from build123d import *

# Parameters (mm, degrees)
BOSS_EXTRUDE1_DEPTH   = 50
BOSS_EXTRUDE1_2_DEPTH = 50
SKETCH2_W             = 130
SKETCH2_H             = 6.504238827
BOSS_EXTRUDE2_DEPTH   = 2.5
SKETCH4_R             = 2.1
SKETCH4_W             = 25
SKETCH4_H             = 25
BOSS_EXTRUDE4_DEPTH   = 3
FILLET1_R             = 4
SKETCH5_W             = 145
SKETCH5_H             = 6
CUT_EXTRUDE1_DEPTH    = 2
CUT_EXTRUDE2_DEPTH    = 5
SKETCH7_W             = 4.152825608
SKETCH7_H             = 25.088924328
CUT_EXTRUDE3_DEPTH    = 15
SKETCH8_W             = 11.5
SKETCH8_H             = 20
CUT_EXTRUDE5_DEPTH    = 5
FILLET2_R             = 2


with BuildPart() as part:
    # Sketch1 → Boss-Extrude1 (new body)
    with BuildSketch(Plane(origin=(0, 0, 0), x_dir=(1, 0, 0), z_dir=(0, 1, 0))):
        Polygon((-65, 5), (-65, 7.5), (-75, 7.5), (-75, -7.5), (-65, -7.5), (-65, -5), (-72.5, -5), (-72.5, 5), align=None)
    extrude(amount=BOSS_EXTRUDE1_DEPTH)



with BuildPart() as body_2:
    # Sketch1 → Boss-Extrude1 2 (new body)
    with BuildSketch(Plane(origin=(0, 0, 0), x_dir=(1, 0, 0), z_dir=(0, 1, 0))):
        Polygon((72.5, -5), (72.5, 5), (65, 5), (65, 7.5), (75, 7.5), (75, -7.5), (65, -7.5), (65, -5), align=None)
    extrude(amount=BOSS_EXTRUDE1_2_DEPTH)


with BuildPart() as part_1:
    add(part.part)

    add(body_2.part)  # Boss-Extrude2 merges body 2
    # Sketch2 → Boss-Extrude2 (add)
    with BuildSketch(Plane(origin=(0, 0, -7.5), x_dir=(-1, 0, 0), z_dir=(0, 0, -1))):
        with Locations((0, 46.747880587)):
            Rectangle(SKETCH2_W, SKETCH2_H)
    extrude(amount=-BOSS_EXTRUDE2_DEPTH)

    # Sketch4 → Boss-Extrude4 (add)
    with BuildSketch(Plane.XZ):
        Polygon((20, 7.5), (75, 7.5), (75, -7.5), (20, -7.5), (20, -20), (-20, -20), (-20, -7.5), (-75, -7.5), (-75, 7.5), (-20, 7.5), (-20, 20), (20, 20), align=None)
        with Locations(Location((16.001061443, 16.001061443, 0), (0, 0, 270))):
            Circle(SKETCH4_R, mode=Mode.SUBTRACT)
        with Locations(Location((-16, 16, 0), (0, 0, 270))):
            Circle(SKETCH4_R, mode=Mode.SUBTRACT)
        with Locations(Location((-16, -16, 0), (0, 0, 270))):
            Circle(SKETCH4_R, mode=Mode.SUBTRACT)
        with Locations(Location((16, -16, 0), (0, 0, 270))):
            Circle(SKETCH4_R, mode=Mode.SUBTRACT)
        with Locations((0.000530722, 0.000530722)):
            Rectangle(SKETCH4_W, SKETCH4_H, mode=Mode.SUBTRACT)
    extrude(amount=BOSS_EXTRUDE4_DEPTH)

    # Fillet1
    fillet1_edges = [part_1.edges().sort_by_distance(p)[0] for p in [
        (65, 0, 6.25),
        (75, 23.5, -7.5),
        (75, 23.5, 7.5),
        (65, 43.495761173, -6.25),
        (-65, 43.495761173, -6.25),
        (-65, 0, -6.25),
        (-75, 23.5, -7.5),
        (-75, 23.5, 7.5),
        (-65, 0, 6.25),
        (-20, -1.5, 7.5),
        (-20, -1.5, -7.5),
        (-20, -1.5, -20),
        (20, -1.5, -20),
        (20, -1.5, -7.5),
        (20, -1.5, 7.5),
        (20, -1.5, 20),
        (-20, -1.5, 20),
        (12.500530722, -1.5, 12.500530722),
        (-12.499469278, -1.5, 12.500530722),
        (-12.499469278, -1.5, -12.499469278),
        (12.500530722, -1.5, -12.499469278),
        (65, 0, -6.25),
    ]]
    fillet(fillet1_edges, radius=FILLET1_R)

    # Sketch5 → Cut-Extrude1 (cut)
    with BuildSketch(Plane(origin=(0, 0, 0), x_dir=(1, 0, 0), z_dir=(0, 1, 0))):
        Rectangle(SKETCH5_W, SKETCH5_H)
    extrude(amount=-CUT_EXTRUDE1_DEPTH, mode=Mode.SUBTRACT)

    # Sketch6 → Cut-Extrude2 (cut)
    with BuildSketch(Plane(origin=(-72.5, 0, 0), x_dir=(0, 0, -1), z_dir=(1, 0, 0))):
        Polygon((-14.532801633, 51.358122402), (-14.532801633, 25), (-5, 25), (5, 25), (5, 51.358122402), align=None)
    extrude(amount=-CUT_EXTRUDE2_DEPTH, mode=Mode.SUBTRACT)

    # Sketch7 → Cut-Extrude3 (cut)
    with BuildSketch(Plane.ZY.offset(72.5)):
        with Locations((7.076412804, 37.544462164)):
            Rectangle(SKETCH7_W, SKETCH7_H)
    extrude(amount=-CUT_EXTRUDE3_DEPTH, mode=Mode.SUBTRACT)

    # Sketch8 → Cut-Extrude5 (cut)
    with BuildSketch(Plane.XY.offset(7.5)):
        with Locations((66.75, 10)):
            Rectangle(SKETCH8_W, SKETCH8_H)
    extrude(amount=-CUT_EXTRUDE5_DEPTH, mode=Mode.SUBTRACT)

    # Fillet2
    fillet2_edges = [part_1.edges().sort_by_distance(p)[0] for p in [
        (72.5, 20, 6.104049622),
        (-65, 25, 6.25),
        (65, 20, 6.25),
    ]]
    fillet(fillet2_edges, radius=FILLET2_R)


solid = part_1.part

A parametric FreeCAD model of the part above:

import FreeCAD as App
import Part
import Sketcher

V = App.Vector


def edges_at(feature, points):
    """Names of the edges that pass closest to the given points."""
    edges = feature.Shape.Edges
    near = lambda p: min(range(len(edges)), key=lambda i: edges[i].distToShape(Part.Vertex(*p))[0])
    return sorted({f"Edge{near(p) + 1}" for p in points})

doc = App.newDocument("Part")
body = doc.addObject("PartDesign::Body", "Body")

sketch1 = body.newObject("Sketcher::SketchObject", "Sketch")
sketch1.AttachmentSupport = (doc.getObject("XZ_Plane"), [""])
sketch1.MapMode = "FlatFace"
sketch1.addGeometry(Part.LineSegment(V(-65, -5, 0), V(-65, -7.5, 0)), False)
sketch1.addGeometry(Part.LineSegment(V(-65, -7.5, 0), V(-75, -7.5, 0)), False)
sketch1.addGeometry(Part.LineSegment(V(-75, -7.5, 0), V(-75, 7.5, 0)), False)
sketch1.addGeometry(Part.LineSegment(V(-75, 7.5, 0), V(-65, 7.5, 0)), False)
sketch1.addGeometry(Part.LineSegment(V(-65, 7.5, 0), V(-65, 5, 0)), False)
sketch1.addGeometry(Part.LineSegment(V(-65, 5, 0), V(-72.5, 5, 0)), False)
sketch1.addGeometry(Part.LineSegment(V(-72.5, 5, 0), V(-72.5, -5, 0)), False)
sketch1.addGeometry(Part.LineSegment(V(-72.5, -5, 0), V(-65, -5, 0)), False)
sketch1.addConstraint(Sketcher.Constraint("Coincident", 0, 2, 1, 1))
sketch1.addConstraint(Sketcher.Constraint("Coincident", 1, 2, 2, 1))
sketch1.addConstraint(Sketcher.Constraint("Coincident", 2, 2, 3, 1))
sketch1.addConstraint(Sketcher.Constraint("Coincident", 3, 2, 4, 1))
sketch1.addConstraint(Sketcher.Constraint("Coincident", 4, 2, 5, 1))
sketch1.addConstraint(Sketcher.Constraint("Coincident", 5, 2, 6, 1))
sketch1.addConstraint(Sketcher.Constraint("Coincident", 6, 2, 7, 1))
sketch1.addConstraint(Sketcher.Constraint("Coincident", 7, 2, 0, 1))
sketch1.addConstraint(Sketcher.Constraint("Vertical", 0))
sketch1.addConstraint(Sketcher.Constraint("Horizontal", 1))
sketch1.addConstraint(Sketcher.Constraint("Vertical", 2))
sketch1.addConstraint(Sketcher.Constraint("Horizontal", 3))
sketch1.addConstraint(Sketcher.Constraint("Vertical", 4))
sketch1.addConstraint(Sketcher.Constraint("Horizontal", 5))
sketch1.addConstraint(Sketcher.Constraint("Vertical", 6))
sketch1.addConstraint(Sketcher.Constraint("Horizontal", 7))
sketch1.addConstraint(Sketcher.Constraint("Symmetric", 0, 2, 3, 2, -1))
sketch1.addConstraint(Sketcher.Constraint("Equal", 0, 4))
sketch1.addConstraint(Sketcher.Constraint("Equal", 3, 6))
sketch1.addConstraint(Sketcher.Constraint("DistanceX", 1, 2, 1, 1, 10.0))
sketch1.addConstraint(Sketcher.Constraint("DistanceY", 2, 1, 2, 2, 15.0))
sketch1.addConstraint(Sketcher.Constraint("DistanceX", 5, 2, 5, 1, 7.5))
sketch1.addConstraint(Sketcher.Constraint("DistanceX", 0, 2, -1, 1, 65.0))
pad1 = body.newObject("PartDesign::Pad", "Pad")
pad1.Profile = sketch1
pad1.Length = 50
pad1.Reversed = True
body2 = doc.addObject("PartDesign::Body", "Body001")

sketch2 = body2.newObject("Sketcher::SketchObject", "Sketch001")
sketch2.AttachmentSupport = (doc.getObject("XZ_Plane001"), [""])
sketch2.MapMode = "FlatFace"
sketch2.addGeometry(Part.LineSegment(V(72.5, -5, 0), V(72.5, 5, 0)), False)
sketch2.addGeometry(Part.LineSegment(V(72.5, 5, 0), V(65, 5, 0)), False)
sketch2.addGeometry(Part.LineSegment(V(65, 5, 0), V(65, 7.5, 0)), False)
sketch2.addGeometry(Part.LineSegment(V(65, 7.5, 0), V(75, 7.5, 0)), False)
sketch2.addGeometry(Part.LineSegment(V(75, 7.5, 0), V(75, -7.5, 0)), False)
sketch2.addGeometry(Part.LineSegment(V(75, -7.5, 0), V(65, -7.5, 0)), False)
sketch2.addGeometry(Part.LineSegment(V(65, -7.5, 0), V(65, -5, 0)), False)
sketch2.addGeometry(Part.LineSegment(V(65, -5, 0), V(72.5, -5, 0)), False)
sketch2.addConstraint(Sketcher.Constraint("Coincident", 0, 2, 1, 1))
sketch2.addConstraint(Sketcher.Constraint("Coincident", 1, 2, 2, 1))
sketch2.addConstraint(Sketcher.Constraint("Coincident", 2, 2, 3, 1))
sketch2.addConstraint(Sketcher.Constraint("Coincident", 3, 2, 4, 1))
sketch2.addConstraint(Sketcher.Constraint("Coincident", 4, 2, 5, 1))
sketch2.addConstraint(Sketcher.Constraint("Coincident", 5, 2, 6, 1))
sketch2.addConstraint(Sketcher.Constraint("Coincident", 6, 2, 7, 1))
sketch2.addConstraint(Sketcher.Constraint("Coincident", 7, 2, 0, 1))
sketch2.addConstraint(Sketcher.Constraint("Vertical", 0))
sketch2.addConstraint(Sketcher.Constraint("Horizontal", 1))
sketch2.addConstraint(Sketcher.Constraint("Vertical", 2))
sketch2.addConstraint(Sketcher.Constraint("Horizontal", 3))
sketch2.addConstraint(Sketcher.Constraint("Vertical", 4))
sketch2.addConstraint(Sketcher.Constraint("Horizontal", 5))
sketch2.addConstraint(Sketcher.Constraint("Vertical", 6))
sketch2.addConstraint(Sketcher.Constraint("Horizontal", 7))
sketch2.addConstraint(Sketcher.Constraint("Symmetric", 2, 2, 5, 2, -1))
sketch2.addConstraint(Sketcher.Constraint("Equal", 5, 0))
sketch2.addConstraint(Sketcher.Constraint("Equal", 2, 6))
sketch2.addConstraint(Sketcher.Constraint("DistanceX", 3, 1, 3, 2, 10.0))
sketch2.addConstraint(Sketcher.Constraint("DistanceY", 4, 2, 4, 1, 15.0))
sketch2.addConstraint(Sketcher.Constraint("DistanceX", 1, 2, 1, 1, 7.5))
sketch2.addConstraint(Sketcher.Constraint("DistanceX", -1, 1, 1, 2, 65.0))
pad2 = body2.newObject("PartDesign::Pad", "Pad001")
pad2.Profile = sketch2
pad2.Length = 50
pad2.Reversed = True
body.AllowCompound = True
doc.recompute()

boolean = body.newObject("PartDesign::Boolean", "Boolean")
boolean.Type = "Fuse"
boolean.addObjects([body2])

sketch3 = body.newObject("Sketcher::SketchObject", "Sketch002")
sketch3.AttachmentSupport = (doc.getObject("XY_Plane"), [""])
sketch3.MapMode = "FlatFace"
sketch3.AttachmentOffset = App.Placement(V(0, 0, -7.5), App.Rotation())
sketch3.addGeometry(Part.LineSegment(V(65, 50, 0), V(65, 43, 0)), False)
sketch3.addGeometry(Part.LineSegment(V(65, 43, 0), V(-65, 43, 0)), False)
sketch3.addGeometry(Part.LineSegment(V(-65, 43, 0), V(-65, 50, 0)), False)
sketch3.addGeometry(Part.LineSegment(V(-65, 50, 0), V(65, 50, 0)), False)
sketch3.addConstraint(Sketcher.Constraint("Coincident", 0, 2, 1, 1))
sketch3.addConstraint(Sketcher.Constraint("Coincident", 1, 2, 2, 1))
sketch3.addConstraint(Sketcher.Constraint("Coincident", 2, 2, 3, 1))
sketch3.addConstraint(Sketcher.Constraint("Coincident", 3, 2, 0, 1))
sketch3.addConstraint(Sketcher.Constraint("Vertical", 0))
sketch3.addConstraint(Sketcher.Constraint("Horizontal", 1))
sketch3.addConstraint(Sketcher.Constraint("Vertical", 2))
sketch3.addConstraint(Sketcher.Constraint("Horizontal", 3))
sketch3.addConstraint(Sketcher.Constraint("DistanceX", 1, 2, 1, 1, 130.0))
sketch3.addConstraint(Sketcher.Constraint("DistanceX", -1, 1, 0, 2, 65.0))
sketch3.addConstraint(Sketcher.Constraint("DistanceY", -1, 1, 2, 2, 50.0))
sketch3.addConstraint(Sketcher.Constraint("DistanceY", 0, 2, 0, 1, 6.504239))
pad3 = body.newObject("PartDesign::Pad", "Pad002")
pad3.Profile = sketch3
pad3.Length = 2.5

sketch4 = body.newObject("Sketcher::SketchObject", "Sketch003")
sketch4.AttachmentSupport = (doc.getObject("XZ_Plane"), [""])
sketch4.MapMode = "FlatFace"
sketch4.addGeometry(Part.LineSegment(V(75, 7.5, 0), V(20, 7.5, 0)), False)
sketch4.addGeometry(Part.LineSegment(V(20, 7.5, 0), V(20, 20, 0)), False)
sketch4.addGeometry(Part.LineSegment(V(20, 20, 0), V(-20, 20, 0)), False)
sketch4.addGeometry(Part.LineSegment(V(-20, 20, 0), V(-20, 7.5, 0)), False)
sketch4.addGeometry(Part.LineSegment(V(-20, 7.5, 0), V(-75, 7.5, 0)), False)
sketch4.addGeometry(Part.LineSegment(V(-75, 7.5, 0), V(-75, -7.5, 0)), False)
sketch4.addGeometry(Part.LineSegment(V(-75, -7.5, 0), V(-20, -7.5, 0)), False)
sketch4.addGeometry(Part.LineSegment(V(-20, -7.5, 0), V(-20, -20, 0)), False)
sketch4.addGeometry(Part.LineSegment(V(-20, -20, 0), V(20, -20, 0)), False)
sketch4.addGeometry(Part.LineSegment(V(20, -20, 0), V(20, -7.5, 0)), False)
sketch4.addGeometry(Part.LineSegment(V(20, -7.5, 0), V(75, -7.5, 0)), False)
sketch4.addGeometry(Part.LineSegment(V(75, -7.5, 0), V(75, 7.5, 0)), False)
sketch4.addGeometry(Part.Circle(V(16, -16, 0), V(0, 0, 1), 2.1), False)
sketch4.addGeometry(Part.Circle(V(-16, -16, 0), V(0, 0, 1), 2.1), False)
sketch4.addGeometry(Part.LineSegment(V(-12.5, -12.5, 0), V(-12.5, 12.5, 0)), False)
sketch4.addGeometry(Part.LineSegment(V(-12.5, 12.5, 0), V(12.5, 12.5, 0)), False)
sketch4.addGeometry(Part.LineSegment(V(12.5, 12.5, 0), V(12.5, -12.5, 0)), False)
sketch4.addGeometry(Part.LineSegment(V(12.5, -12.5, 0), V(-12.5, -12.5, 0)), False)
sketch4.addGeometry(Part.Circle(V(16, 16, 0), V(0, 0, 1), 2.1), False)
sketch4.addGeometry(Part.Circle(V(-16, 16, 0), V(0, 0, 1), 2.1), False)
sketch4.addConstraint(Sketcher.Constraint("Coincident", 0, 2, 1, 1))
sketch4.addConstraint(Sketcher.Constraint("Coincident", 1, 2, 2, 1))
sketch4.addConstraint(Sketcher.Constraint("Coincident", 2, 2, 3, 1))
sketch4.addConstraint(Sketcher.Constraint("Coincident", 3, 2, 4, 1))
sketch4.addConstraint(Sketcher.Constraint("Coincident", 4, 2, 5, 1))
sketch4.addConstraint(Sketcher.Constraint("Coincident", 5, 2, 6, 1))
sketch4.addConstraint(Sketcher.Constraint("Coincident", 6, 2, 7, 1))
sketch4.addConstraint(Sketcher.Constraint("Coincident", 7, 2, 8, 1))
sketch4.addConstraint(Sketcher.Constraint("Coincident", 8, 2, 9, 1))
sketch4.addConstraint(Sketcher.Constraint("Coincident", 9, 2, 10, 1))
sketch4.addConstraint(Sketcher.Constraint("Coincident", 10, 2, 11, 1))
sketch4.addConstraint(Sketcher.Constraint("Coincident", 11, 2, 0, 1))
sketch4.addConstraint(Sketcher.Constraint("Coincident", 14, 2, 15, 1))
sketch4.addConstraint(Sketcher.Constraint("Coincident", 15, 2, 16, 1))
sketch4.addConstraint(Sketcher.Constraint("Coincident", 16, 2, 17, 1))
sketch4.addConstraint(Sketcher.Constraint("Coincident", 17, 2, 14, 1))
sketch4.addConstraint(Sketcher.Constraint("Horizontal", 0))
sketch4.addConstraint(Sketcher.Constraint("Vertical", 1))
sketch4.addConstraint(Sketcher.Constraint("Horizontal", 2))
sketch4.addConstraint(Sketcher.Constraint("Vertical", 3))
sketch4.addConstraint(Sketcher.Constraint("Horizontal", 4))
sketch4.addConstraint(Sketcher.Constraint("Vertical", 5))
sketch4.addConstraint(Sketcher.Constraint("Horizontal", 6))
sketch4.addConstraint(Sketcher.Constraint("Vertical", 7))
sketch4.addConstraint(Sketcher.Constraint("Horizontal", 8))
sketch4.addConstraint(Sketcher.Constraint("Vertical", 9))
sketch4.addConstraint(Sketcher.Constraint("Horizontal", 10))
sketch4.addConstraint(Sketcher.Constraint("Vertical", 11))
sketch4.addConstraint(Sketcher.Constraint("Vertical", 14))
sketch4.addConstraint(Sketcher.Constraint("Horizontal", 15))
sketch4.addConstraint(Sketcher.Constraint("Vertical", 16))
sketch4.addConstraint(Sketcher.Constraint("Horizontal", 17))
sketch4.addConstraint(Sketcher.Constraint("Equal", 12, 13))
sketch4.addConstraint(Sketcher.Constraint("Equal", 13, 18))
sketch4.addConstraint(Sketcher.Constraint("Equal", 18, 19))
sketch4.addConstraint(Sketcher.Constraint("Symmetric", 12, 3, 19, 3, -1, 1))
sketch4.addConstraint(Sketcher.Constraint("Symmetric", 0, 2, 6, 2, -1, 1))
sketch4.addConstraint(Sketcher.Constraint("Symmetric", 2, 2, 8, 2, -1, 1))
sketch4.addConstraint(Sketcher.Constraint("Symmetric", 4, 2, 10, 2, -1, 1))
sketch4.addConstraint(Sketcher.Constraint("Symmetric", 12, 3, 13, 3, -2))
sketch4.addConstraint(Sketcher.Constraint("Symmetric", 0, 2, 3, 2, -2))
sketch4.addConstraint(Sketcher.Constraint("Equal", 17, 14))
sketch4.addConstraint(Sketcher.Constraint("Diameter", 12, 4.2))
sketch4.addConstraint(Sketcher.Constraint("DistanceX", 0, 2, 0, 1, 55.0))
sketch4.addConstraint(Sketcher.Constraint("DistanceX", 2, 2, 2, 1, 40.0))
sketch4.addConstraint(Sketcher.Constraint("DistanceX", 15, 1, 15, 2, 25.0))
sketch4.addConstraint(Sketcher.Constraint("DistanceY", 5, 2, 5, 1, 15.0))
sketch4.addConstraint(Sketcher.Constraint("DistanceY", 1, 1, 1, 2, 12.5))
sketch4.addConstraint(Sketcher.Constraint("DistanceX", -1, 1, 12, 3, 16.0))
sketch4.addConstraint(Sketcher.Constraint("DistanceY", 12, 3, -1, 1, 16.0))
sketch4.addConstraint(Sketcher.Constraint("DistanceX", -1, 1, 18, 3, 16.001061))
sketch4.addConstraint(Sketcher.Constraint("DistanceY", -1, 1, 18, 3, 16.001061))
sketch4.addConstraint(Sketcher.Constraint("DistanceX", 14, 2, -1, 1, 12.499469))
sketch4.addConstraint(Sketcher.Constraint("DistanceY", -1, 1, 14, 2, 12.500531))
pad4 = body.newObject("PartDesign::Pad", "Pad003")
pad4.Profile = sketch4
pad4.Length = 3
doc.recompute()

fillet = body.newObject("PartDesign::Fillet", "Fillet")
fillet.Base = (pad4, edges_at(pad4, [
    (65, 0, 6.25),
    (75, 23.5, -7.5),
    (75, 23.5, 7.5),
    (65, 43.496, -6.25),
    (-65, 43.496, -6.25),
    (-65, 0, -6.25),
    (-75, 23.5, -7.5),
    (-75, 23.5, 7.5),
    (-65, 0, 6.25),
    (-20, -1.5, 7.5),
    (-20, -1.5, -7.5),
    (-20, -1.5, -20),
    (20, -1.5, -20),
    (20, -1.5, -7.5),
    (20, -1.5, 7.5),
    (20, -1.5, 20),
    (-20, -1.5, 20),
    (12.501, -1.5, 12.501),
    (-12.499, -1.5, 12.501),
    (-12.499, -1.5, -12.499),
    (12.501, -1.5, -12.499),
    (65, 0, -6.25),
]))
fillet.Radius = 4

sketch5 = body.newObject("Sketcher::SketchObject", "Sketch004")
sketch5.AttachmentSupport = (doc.getObject("XZ_Plane"), [""])
sketch5.MapMode = "FlatFace"
sketch5.addGeometry(Part.LineSegment(V(-72, -3, 0), V(-72, 3, 0)), False)
sketch5.addGeometry(Part.LineSegment(V(-72, 3, 0), V(72, 3, 0)), False)
sketch5.addGeometry(Part.LineSegment(V(72, 3, 0), V(72, -3, 0)), False)
sketch5.addGeometry(Part.LineSegment(V(72, -3, 0), V(-72, -3, 0)), False)
sketch5.addConstraint(Sketcher.Constraint("Coincident", 0, 2, 1, 1))
sketch5.addConstraint(Sketcher.Constraint("Coincident", 1, 2, 2, 1))
sketch5.addConstraint(Sketcher.Constraint("Coincident", 2, 2, 3, 1))
sketch5.addConstraint(Sketcher.Constraint("Coincident", 3, 2, 0, 1))
sketch5.addConstraint(Sketcher.Constraint("Vertical", 0))
sketch5.addConstraint(Sketcher.Constraint("Horizontal", 1))
sketch5.addConstraint(Sketcher.Constraint("Vertical", 2))
sketch5.addConstraint(Sketcher.Constraint("Horizontal", 3))
sketch5.addConstraint(Sketcher.Constraint("Symmetric", 0, 2, 2, 2, -1, 1))
sketch5.addConstraint(Sketcher.Constraint("DistanceX", 1, 1, 1, 2, 145.0))
sketch5.addConstraint(Sketcher.Constraint("DistanceY", 0, 1, 0, 2, 6.0))
pocket1 = body.newObject("PartDesign::Pocket", "Pocket")
pocket1.Profile = sketch5
pocket1.Length = 2
pocket1.Reversed = True

sketch6 = body.newObject("Sketcher::SketchObject", "Sketch005")
sketch6.AttachmentSupport = (doc.getObject("YZ_Plane"), [""])
sketch6.MapMode = "FlatFace"
sketch6.AttachmentOffset = App.Placement(V(0, 0, -72.5), App.Rotation())
sketch6.addGeometry(Part.LineSegment(V(51, 15, 0), V(25, 15, 0)), False)
sketch6.addGeometry(Part.LineSegment(V(25, 15, 0), V(25, -5, 0)), False)
sketch6.addGeometry(Part.LineSegment(V(25, -5, 0), V(51, -5, 0)), False)
sketch6.addGeometry(Part.LineSegment(V(51, -5, 0), V(51, 15, 0)), False)
sketch6.addConstraint(Sketcher.Constraint("Coincident", 0, 2, 1, 1))
sketch6.addConstraint(Sketcher.Constraint("Coincident", 1, 2, 2, 1))
sketch6.addConstraint(Sketcher.Constraint("Coincident", 2, 2, 3, 1))
sketch6.addConstraint(Sketcher.Constraint("Coincident", 3, 2, 0, 1))
sketch6.addConstraint(Sketcher.Constraint("Horizontal", 0))
sketch6.addConstraint(Sketcher.Constraint("Vertical", 1))
sketch6.addConstraint(Sketcher.Constraint("Horizontal", 2))
sketch6.addConstraint(Sketcher.Constraint("Vertical", 3))
sketch6.addConstraint(Sketcher.Constraint("DistanceX", -1, 1, 0, 2, 25.0))
sketch6.addConstraint(Sketcher.Constraint("DistanceY", 1, 2, -1, 1, 5.0))
sketch6.addConstraint(Sketcher.Constraint("DistanceY", 1, 2, 1, 1, 19.532802))
sketch6.addConstraint(Sketcher.Constraint("DistanceX", 0, 2, 0, 1, 26.358122))
pocket2 = body.newObject("PartDesign::Pocket", "Pocket001")
pocket2.Profile = sketch6
pocket2.Length = 5

sketch7 = body.newObject("Sketcher::SketchObject", "Sketch006")
sketch7.AttachmentSupport = (doc.getObject("YZ_Plane"), [""])
sketch7.MapMode = "FlatFace"
sketch7.AttachmentOffset = App.Placement(V(0, 0, -72.5), App.Rotation())
sketch7.addGeometry(Part.LineSegment(V(50.1, 5, 0), V(25, 5, 0)), False)
sketch7.addGeometry(Part.LineSegment(V(25, 5, 0), V(25, 9.2, 0)), False)
sketch7.addGeometry(Part.LineSegment(V(25, 9.2, 0), V(50.1, 9.2, 0)), False)
sketch7.addGeometry(Part.LineSegment(V(50.1, 9.2, 0), V(50.1, 5, 0)), False)
sketch7.addConstraint(Sketcher.Constraint("Coincident", 0, 2, 1, 1))
sketch7.addConstraint(Sketcher.Constraint("Coincident", 1, 2, 2, 1))
sketch7.addConstraint(Sketcher.Constraint("Coincident", 2, 2, 3, 1))
sketch7.addConstraint(Sketcher.Constraint("Coincident", 3, 2, 0, 1))
sketch7.addConstraint(Sketcher.Constraint("Horizontal", 0))
sketch7.addConstraint(Sketcher.Constraint("Vertical", 1))
sketch7.addConstraint(Sketcher.Constraint("Horizontal", 2))
sketch7.addConstraint(Sketcher.Constraint("Vertical", 3))
sketch7.addConstraint(Sketcher.Constraint("DistanceX", -1, 1, 0, 2, 25.0))
sketch7.addConstraint(Sketcher.Constraint("DistanceY", -1, 1, 0, 2, 5.0))
sketch7.addConstraint(Sketcher.Constraint("DistanceX", 0, 2, 0, 1, 25.088924))
sketch7.addConstraint(Sketcher.Constraint("DistanceY", 1, 1, 1, 2, 4.152826))
pocket3 = body.newObject("PartDesign::Pocket", "Pocket002")
pocket3.Profile = sketch7
pocket3.Length = 15
pocket3.Reversed = True

sketch8 = body.newObject("Sketcher::SketchObject", "Sketch007")
sketch8.AttachmentSupport = (doc.getObject("XY_Plane"), [""])
sketch8.MapMode = "FlatFace"
sketch8.AttachmentOffset = App.Placement(V(0, 0, 7.5), App.Rotation())
sketch8.addGeometry(Part.LineSegment(V(61, 20, 0), V(61, 0, 0)), False)
sketch8.addGeometry(Part.LineSegment(V(61, 0, 0), V(72, 0, 0)), False)
sketch8.addGeometry(Part.LineSegment(V(72, 0, 0), V(72, 20, 0)), False)
sketch8.addGeometry(Part.LineSegment(V(72, 20, 0), V(61, 20, 0)), False)
sketch8.addConstraint(Sketcher.Constraint("Coincident", 0, 2, 1, 1))
sketch8.addConstraint(Sketcher.Constraint("Coincident", 1, 2, 2, 1))
sketch8.addConstraint(Sketcher.Constraint("Coincident", 2, 2, 3, 1))
sketch8.addConstraint(Sketcher.Constraint("Coincident", 3, 2, 0, 1))
sketch8.addConstraint(Sketcher.Constraint("Vertical", 0))
sketch8.addConstraint(Sketcher.Constraint("Horizontal", 1))
sketch8.addConstraint(Sketcher.Constraint("Vertical", 2))
sketch8.addConstraint(Sketcher.Constraint("Horizontal", 3))
sketch8.addConstraint(Sketcher.Constraint("PointOnObject", 0, 2, -1))
sketch8.addConstraint(Sketcher.Constraint("DistanceY", 0, 2, 0, 1, 20.0))
sketch8.addConstraint(Sketcher.Constraint("DistanceX", 1, 1, 1, 2, 11.5))
sketch8.addConstraint(Sketcher.Constraint("DistanceX", -1, 1, 0, 2, 61.0))
pocket4 = body.newObject("PartDesign::Pocket", "Pocket003")
pocket4.Profile = sketch8
pocket4.Length = 5
doc.recompute()

fillet2 = body.newObject("PartDesign::Fillet", "Fillet001")
fillet2.Base = (pocket4, edges_at(pocket4, [(72.5, 20, 6.104), (-65, 25, 6.25), (65, 20, 6.25)]))
fillet2.Radius = 2

doc.recompute()
